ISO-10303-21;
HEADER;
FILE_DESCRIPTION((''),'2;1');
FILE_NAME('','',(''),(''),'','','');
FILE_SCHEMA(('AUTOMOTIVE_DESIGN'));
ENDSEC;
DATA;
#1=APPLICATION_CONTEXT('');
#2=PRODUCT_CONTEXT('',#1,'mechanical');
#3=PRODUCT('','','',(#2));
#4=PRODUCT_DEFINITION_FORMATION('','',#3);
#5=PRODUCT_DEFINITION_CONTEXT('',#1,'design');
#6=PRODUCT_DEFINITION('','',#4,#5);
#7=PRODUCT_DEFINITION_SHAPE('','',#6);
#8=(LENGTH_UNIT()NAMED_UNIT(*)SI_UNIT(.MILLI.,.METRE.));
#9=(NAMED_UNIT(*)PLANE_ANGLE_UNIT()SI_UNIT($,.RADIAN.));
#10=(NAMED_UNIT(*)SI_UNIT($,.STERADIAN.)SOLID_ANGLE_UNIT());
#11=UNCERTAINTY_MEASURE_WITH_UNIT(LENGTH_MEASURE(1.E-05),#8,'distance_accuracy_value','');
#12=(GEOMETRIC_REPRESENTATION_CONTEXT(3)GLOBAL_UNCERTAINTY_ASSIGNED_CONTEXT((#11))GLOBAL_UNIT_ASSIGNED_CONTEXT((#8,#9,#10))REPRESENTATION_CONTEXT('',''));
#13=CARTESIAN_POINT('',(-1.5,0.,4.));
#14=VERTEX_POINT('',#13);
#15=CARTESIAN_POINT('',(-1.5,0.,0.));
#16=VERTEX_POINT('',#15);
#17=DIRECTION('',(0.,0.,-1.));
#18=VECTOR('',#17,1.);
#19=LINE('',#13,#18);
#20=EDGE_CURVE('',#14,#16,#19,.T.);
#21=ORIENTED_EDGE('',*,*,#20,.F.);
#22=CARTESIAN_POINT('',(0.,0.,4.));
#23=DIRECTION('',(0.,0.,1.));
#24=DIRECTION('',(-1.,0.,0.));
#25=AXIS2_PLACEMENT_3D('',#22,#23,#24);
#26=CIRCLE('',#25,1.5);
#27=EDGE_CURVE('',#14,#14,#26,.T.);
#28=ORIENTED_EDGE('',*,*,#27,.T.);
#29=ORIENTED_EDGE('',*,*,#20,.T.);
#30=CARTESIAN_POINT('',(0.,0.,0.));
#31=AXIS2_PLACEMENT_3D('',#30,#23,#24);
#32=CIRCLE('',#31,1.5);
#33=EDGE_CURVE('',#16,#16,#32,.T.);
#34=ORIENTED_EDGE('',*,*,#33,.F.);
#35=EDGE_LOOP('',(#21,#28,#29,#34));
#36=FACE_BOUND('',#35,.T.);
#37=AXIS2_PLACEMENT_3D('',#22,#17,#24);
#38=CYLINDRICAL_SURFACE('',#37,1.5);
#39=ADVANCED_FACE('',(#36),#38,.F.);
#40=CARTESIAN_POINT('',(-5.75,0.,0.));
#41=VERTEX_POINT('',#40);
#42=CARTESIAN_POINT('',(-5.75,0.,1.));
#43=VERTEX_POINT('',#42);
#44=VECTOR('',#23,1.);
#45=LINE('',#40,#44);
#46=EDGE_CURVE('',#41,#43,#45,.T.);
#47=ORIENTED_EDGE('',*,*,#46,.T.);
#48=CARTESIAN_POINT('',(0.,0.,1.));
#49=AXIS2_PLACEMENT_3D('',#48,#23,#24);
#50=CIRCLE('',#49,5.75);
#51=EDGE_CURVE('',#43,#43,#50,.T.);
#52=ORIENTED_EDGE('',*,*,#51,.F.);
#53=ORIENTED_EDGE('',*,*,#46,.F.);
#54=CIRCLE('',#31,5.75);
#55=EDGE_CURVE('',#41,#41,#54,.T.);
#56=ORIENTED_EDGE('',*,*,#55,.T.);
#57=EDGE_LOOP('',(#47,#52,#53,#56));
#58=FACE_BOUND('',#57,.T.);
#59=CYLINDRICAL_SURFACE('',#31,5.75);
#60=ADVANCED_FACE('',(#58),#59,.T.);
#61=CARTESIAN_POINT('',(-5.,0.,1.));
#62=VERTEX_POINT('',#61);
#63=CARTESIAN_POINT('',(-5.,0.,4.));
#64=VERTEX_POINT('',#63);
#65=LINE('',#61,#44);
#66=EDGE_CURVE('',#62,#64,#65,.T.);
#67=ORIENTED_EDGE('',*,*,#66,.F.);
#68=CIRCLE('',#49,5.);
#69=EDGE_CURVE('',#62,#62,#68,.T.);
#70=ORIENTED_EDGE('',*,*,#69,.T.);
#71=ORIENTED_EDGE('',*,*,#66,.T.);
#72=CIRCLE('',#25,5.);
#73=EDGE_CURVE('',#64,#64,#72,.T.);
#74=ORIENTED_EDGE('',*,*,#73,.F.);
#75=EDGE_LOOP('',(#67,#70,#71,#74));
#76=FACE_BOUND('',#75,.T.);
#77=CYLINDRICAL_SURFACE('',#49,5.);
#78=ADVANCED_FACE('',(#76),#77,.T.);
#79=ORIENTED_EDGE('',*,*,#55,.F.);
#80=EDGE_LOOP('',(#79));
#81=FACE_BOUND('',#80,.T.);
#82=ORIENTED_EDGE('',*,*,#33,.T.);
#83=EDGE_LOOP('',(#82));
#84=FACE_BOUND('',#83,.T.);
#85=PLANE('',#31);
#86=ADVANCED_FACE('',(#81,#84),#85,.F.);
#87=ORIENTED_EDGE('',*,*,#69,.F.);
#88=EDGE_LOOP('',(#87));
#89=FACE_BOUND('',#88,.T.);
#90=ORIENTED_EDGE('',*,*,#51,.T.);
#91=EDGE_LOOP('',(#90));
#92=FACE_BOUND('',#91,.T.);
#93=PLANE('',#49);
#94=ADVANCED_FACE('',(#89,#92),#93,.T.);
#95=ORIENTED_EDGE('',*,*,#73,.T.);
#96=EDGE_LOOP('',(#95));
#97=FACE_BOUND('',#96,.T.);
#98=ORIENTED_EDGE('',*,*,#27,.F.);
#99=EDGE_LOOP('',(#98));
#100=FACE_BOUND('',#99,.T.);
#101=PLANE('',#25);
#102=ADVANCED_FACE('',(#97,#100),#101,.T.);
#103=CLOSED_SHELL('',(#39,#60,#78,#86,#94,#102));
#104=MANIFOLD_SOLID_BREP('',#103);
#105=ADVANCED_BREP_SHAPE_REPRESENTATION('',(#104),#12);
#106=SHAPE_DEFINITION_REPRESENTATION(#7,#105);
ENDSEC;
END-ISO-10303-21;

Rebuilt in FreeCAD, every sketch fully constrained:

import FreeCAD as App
import Part
import Sketcher
from FreeCAD import Vector
Q = App.Units.Quantity

doc = App.newDocument("Part")
params = doc.addObject("Spreadsheet::Sheet", "Params")
for row, (alias, value) in enumerate([
    ("sketch1_height", "4 mm"),
    ("sketch1_height2", "1 mm"),
    ("sketch1_width", "0.75 mm"),
    ("revolution_angle", "360 deg"),
], start=1):
    params.set(f"A{row}", alias)
    params.set(f"B{row}", "=" + value)
    params.setAlias(f"B{row}", alias)

body = doc.addObject("PartDesign::Body", "Body")

# Sketch on XZ plane
sketch1 = body.newObject("Sketcher::SketchObject", "Sketch")
sketch1.AttachmentSupport = (doc.getObject("XZ_Plane"), [""])
sketch1.MapMode = "FlatFace"
sketch1.addGeometry([
    Part.LineSegment(Vector(-1.5, 4, 0), Vector(-1.5, 0, 0)),  # 0
    Part.LineSegment(Vector(-1.5, 0, 0), Vector(-5.8, 0, 0)),  # 1
    Part.LineSegment(Vector(-5.8, 0, 0), Vector(-5.8, 1, 0)),  # 2
    Part.LineSegment(Vector(-5.8, 1, 0), Vector(-5, 1, 0)),  # 3
    Part.LineSegment(Vector(-5, 1, 0), Vector(-5, 4, 0)),  # 4
    Part.LineSegment(Vector(-5, 4, 0), Vector(-1.5, 4, 0)),  # 5
], False)
sketch1.addConstraint([
    Sketcher.Constraint("Coincident", 0, 2, 1, 1),
    Sketcher.Constraint("Coincident", 1, 2, 2, 1),
    Sketcher.Constraint("Coincident", 2, 2, 3, 1),
    Sketcher.Constraint("Coincident", 3, 2, 4, 1),
    Sketcher.Constraint("Coincident", 4, 2, 5, 1),
    Sketcher.Constraint("Coincident", 5, 2, 0, 1),
    Sketcher.Constraint("Vertical", 0),
    Sketcher.Constraint("Horizontal", 1),
    Sketcher.Constraint("Vertical", 2),
    Sketcher.Constraint("Horizontal", 3),
    Sketcher.Constraint("Vertical", 4),
    Sketcher.Constraint("Horizontal", 5),
    Sketcher.Constraint("PointOnObject", 0, 2, -1),
    Sketcher.Constraint("DistanceY", 0, 2, 0, 1, Q("4 mm")),
    Sketcher.Constraint("DistanceY", 2, 1, 2, 2, Q("1 mm")),
    Sketcher.Constraint("DistanceX", 3, 2, -1, 1, Q("5 mm")),
    Sketcher.Constraint("DistanceX", 3, 1, 3, 2, Q("0.75 mm")),
    Sketcher.Constraint("DistanceX", 0, 2, -1, 1, Q("1.5 mm")),
])
sketch1.setExpression("Constraints[13]", "Params.sketch1_height")
sketch1.setExpression("Constraints[14]", "Params.sketch1_height2")
sketch1.setExpression("Constraints[16]", "Params.sketch1_width")
revolution = body.newObject("PartDesign::Revolution", "Revolution")
revolution.Profile = sketch1
revolution.ReferenceAxis = (sketch1, ["V_Axis"])
revolution.setExpression("Angle", "Params.revolution_angle")

doc.recompute()
